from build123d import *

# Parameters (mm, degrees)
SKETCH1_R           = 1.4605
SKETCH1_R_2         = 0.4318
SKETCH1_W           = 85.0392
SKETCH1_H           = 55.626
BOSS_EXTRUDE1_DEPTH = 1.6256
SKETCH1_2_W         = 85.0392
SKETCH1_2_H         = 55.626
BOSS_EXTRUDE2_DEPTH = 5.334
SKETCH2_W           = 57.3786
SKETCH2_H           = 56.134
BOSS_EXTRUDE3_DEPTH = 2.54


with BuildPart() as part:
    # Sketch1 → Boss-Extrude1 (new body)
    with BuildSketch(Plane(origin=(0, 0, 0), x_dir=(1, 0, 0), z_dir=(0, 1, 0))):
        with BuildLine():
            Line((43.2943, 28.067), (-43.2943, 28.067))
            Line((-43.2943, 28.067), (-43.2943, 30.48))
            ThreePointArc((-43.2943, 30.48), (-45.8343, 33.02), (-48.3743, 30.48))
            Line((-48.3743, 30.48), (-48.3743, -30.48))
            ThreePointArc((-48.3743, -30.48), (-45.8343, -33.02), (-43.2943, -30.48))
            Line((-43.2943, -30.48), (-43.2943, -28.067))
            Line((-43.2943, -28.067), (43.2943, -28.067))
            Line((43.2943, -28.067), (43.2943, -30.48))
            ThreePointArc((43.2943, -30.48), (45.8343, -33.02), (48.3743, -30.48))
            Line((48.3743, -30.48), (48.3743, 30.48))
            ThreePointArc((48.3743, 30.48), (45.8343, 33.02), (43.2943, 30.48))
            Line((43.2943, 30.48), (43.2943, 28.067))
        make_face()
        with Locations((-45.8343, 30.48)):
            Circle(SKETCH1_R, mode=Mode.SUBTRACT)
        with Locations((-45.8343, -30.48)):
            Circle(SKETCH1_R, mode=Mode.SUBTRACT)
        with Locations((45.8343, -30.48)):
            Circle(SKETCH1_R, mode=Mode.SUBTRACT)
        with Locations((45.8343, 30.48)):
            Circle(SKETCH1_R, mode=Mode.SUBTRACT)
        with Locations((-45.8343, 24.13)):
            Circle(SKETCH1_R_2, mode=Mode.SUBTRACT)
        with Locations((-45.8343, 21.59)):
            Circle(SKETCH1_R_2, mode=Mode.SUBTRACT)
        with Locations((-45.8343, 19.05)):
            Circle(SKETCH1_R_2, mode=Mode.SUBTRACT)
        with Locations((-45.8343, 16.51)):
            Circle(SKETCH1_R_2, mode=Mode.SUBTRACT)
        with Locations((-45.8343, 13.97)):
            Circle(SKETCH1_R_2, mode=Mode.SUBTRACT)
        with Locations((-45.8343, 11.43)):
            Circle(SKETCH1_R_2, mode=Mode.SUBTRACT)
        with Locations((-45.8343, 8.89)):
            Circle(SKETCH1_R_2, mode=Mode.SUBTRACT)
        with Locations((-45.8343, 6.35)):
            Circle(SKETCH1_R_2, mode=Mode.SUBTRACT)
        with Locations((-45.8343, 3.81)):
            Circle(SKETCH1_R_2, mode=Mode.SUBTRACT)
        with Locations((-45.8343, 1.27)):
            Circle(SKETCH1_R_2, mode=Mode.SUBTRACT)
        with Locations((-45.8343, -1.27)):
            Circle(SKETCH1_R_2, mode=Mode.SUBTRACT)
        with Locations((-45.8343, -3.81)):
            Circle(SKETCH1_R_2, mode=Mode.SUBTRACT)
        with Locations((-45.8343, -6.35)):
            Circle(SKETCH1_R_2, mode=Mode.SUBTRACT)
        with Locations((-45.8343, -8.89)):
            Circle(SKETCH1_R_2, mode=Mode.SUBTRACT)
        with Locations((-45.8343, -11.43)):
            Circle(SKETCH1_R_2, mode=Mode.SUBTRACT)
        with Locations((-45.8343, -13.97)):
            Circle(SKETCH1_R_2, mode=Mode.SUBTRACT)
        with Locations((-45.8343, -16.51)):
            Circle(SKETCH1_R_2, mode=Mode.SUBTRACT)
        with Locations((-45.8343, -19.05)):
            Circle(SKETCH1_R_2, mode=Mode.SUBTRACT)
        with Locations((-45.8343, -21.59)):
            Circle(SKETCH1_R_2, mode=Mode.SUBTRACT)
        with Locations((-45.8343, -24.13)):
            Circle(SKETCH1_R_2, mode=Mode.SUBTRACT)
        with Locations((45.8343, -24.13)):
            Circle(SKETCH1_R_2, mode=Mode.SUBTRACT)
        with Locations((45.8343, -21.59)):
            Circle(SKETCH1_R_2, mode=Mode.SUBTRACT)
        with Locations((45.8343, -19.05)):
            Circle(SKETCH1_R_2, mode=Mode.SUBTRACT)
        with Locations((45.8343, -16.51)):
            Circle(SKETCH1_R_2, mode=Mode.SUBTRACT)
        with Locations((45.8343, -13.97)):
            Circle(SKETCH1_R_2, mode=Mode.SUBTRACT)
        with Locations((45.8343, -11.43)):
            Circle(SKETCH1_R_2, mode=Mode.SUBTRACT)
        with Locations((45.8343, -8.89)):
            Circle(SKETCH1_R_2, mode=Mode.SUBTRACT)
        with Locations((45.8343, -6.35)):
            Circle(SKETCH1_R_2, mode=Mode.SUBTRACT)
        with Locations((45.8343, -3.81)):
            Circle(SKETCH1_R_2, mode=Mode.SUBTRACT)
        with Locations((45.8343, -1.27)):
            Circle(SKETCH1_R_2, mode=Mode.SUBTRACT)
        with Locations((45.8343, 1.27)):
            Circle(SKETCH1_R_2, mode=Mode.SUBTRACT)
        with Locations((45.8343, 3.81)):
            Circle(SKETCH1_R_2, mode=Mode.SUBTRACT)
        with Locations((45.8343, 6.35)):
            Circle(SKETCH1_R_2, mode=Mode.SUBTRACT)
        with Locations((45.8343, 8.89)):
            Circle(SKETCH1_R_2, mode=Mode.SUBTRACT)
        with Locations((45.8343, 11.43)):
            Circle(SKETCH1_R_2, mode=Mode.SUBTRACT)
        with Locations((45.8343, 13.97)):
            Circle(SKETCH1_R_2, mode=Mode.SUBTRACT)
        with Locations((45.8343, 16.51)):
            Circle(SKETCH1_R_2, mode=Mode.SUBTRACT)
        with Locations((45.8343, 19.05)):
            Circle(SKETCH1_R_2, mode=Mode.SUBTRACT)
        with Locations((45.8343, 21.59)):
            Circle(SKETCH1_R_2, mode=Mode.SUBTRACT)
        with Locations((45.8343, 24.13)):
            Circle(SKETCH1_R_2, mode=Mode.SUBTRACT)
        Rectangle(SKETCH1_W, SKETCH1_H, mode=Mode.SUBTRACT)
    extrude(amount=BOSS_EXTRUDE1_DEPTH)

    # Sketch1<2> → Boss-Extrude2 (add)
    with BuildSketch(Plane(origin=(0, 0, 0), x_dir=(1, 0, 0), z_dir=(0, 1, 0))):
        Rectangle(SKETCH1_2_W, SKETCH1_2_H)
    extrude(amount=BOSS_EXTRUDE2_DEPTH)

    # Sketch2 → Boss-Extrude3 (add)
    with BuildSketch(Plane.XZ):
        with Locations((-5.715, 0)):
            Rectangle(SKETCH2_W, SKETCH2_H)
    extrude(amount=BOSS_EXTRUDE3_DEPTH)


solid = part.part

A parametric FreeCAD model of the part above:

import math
import FreeCAD as App
import Part
import Sketcher
from FreeCAD import Vector
Q = App.Units.Quantity

doc = App.newDocument("Part")
body = doc.addObject("PartDesign::Body", "Body")

# Sketch on XZ plane
sketch1 = body.newObject("Sketcher::SketchObject", "Sketch")
sketch1.AttachmentSupport = (doc.getObject("XZ_Plane"), [""])
sketch1.MapMode = "FlatFace"
sketch1.addGeometry(Part.LineSegment(Vector(43.29, -28.07, 0), Vector(-43.29, -28.07, 0)), False)
sketch1.addGeometry(Part.LineSegment(Vector(-43.29, -28.07, 0), Vector(-43.29, -30.48, 0)), False)
sketch1.addGeometry(Part.ArcOfCircle(Part.Circle(Vector(-45.83, -30.48, 0), Vector(0, 0, 1), 2.54), math.radians(180), math.radians(360)), False)
sketch1.addGeometry(Part.LineSegment(Vector(-48.37, -30.48, 0), Vector(-48.37, 30.48, 0)), False)
sketch1.addGeometry(Part.ArcOfCircle(Part.Circle(Vector(-45.83, 30.48, 0), Vector(0, 0, 1), 2.54), math.radians(0), math.radians(180)), False)
sketch1.addGeometry(Part.LineSegment(Vector(-43.29, 30.48, 0), Vector(-43.29, 28.07, 0)), False)
sketch1.addGeometry(Part.LineSegment(Vector(-43.29, 28.07, 0), Vector(43.29, 28.07, 0)), False)
sketch1.addGeometry(Part.LineSegment(Vector(43.29, 28.07, 0), Vector(43.29, 30.48, 0)), False)
sketch1.addGeometry(Part.ArcOfCircle(Part.Circle(Vector(45.83, 30.48, 0), Vector(0, 0, 1), 2.54), math.radians(0), math.radians(180)), False)
sketch1.addGeometry(Part.LineSegment(Vector(48.37, 30.48, 0), Vector(48.37, -30.48, 0)), False)
sketch1.addGeometry(Part.ArcOfCircle(Part.Circle(Vector(45.83, -30.48, 0), Vector(0, 0, 1), 2.54), math.radians(180), math.radians(360)), False)
sketch1.addGeometry(Part.LineSegment(Vector(43.29, -30.48, 0), Vector(43.29, -28.07, 0)), False)
sketch1.addGeometry(Part.Circle(Vector(-45.83, 30.48, 0), Vector(0, 0, 1), 1.46), False)
sketch1.addGeometry(Part.Circle(Vector(-45.83, 24.13, 0), Vector(0, 0, 1), 0.43), False)
sketch1.addGeometry(Part.Circle(Vector(-45.83, 21.59, 0), Vector(0, 0, 1), 0.43), False)
sketch1.addGeometry(Part.Circle(Vector(-45.83, 19.05, 0), Vector(0, 0, 1), 0.43), False)
sketch1.addGeometry(Part.Circle(Vector(-45.83, 16.51, 0), Vector(0, 0, 1), 0.43), False)
sketch1.addGeometry(Part.Circle(Vector(-45.83, 13.97, 0), Vector(0, 0, 1), 0.43), False)
sketch1.addGeometry(Part.Circle(Vector(-45.83, 11.43, 0), Vector(0, 0, 1), 0.43), False)
sketch1.addGeometry(Part.Circle(Vector(-45.83, 8.89, 0), Vector(0, 0, 1), 0.43), False)
sketch1.addGeometry(Part.Circle(Vector(-45.83, 6.35, 0), Vector(0, 0, 1), 0.43), False)
sketch1.addGeometry(Part.Circle(Vector(-45.83, 3.81, 0), Vector(0, 0, 1), 0.43), False)
sketch1.addGeometry(Part.Circle(Vector(-45.83, 1.27, 0), Vector(0, 0, 1), 0.43), False)
sketch1.addGeometry(Part.Circle(Vector(45.83, 30.48, 0), Vector(0, 0, 1), 1.46), False)
sketch1.addGeometry(Part.Circle(Vector(45.83, 24.13, 0), Vector(0, 0, 1), 0.43), False)
sketch1.addGeometry(Part.Circle(Vector(45.83, 21.59, 0), Vector(0, 0, 1), 0.43), False)
sketch1.addGeometry(Part.Circle(Vector(45.83, 19.05, 0), Vector(0, 0, 1), 0.43), False)
sketch1.addGeometry(Part.Circle(Vector(45.83, 16.51, 0), Vector(0, 0, 1), 0.43), False)
sketch1.addGeometry(Part.LineSegment(Vector(42.52, 27.81, 0), Vector(-42.52, 27.81, 0)), False)
sketch1.addGeometry(Part.LineSegment(Vector(-42.52, 27.81, 0), Vector(-42.52, -27.81, 0)), False)
sketch1.addGeometry(Part.LineSegment(Vector(-42.52, -27.81, 0), Vector(42.52, -27.81, 0)), False)
sketch1.addGeometry(Part.LineSegment(Vector(42.52, -27.81, 0), Vector(42.52, 27.81, 0)), False)
sketch1.addGeometry(Part.Circle(Vector(45.83, 13.97, 0), Vector(0, 0, 1), 0.43), False)
sketch1.addGeometry(Part.Circle(Vector(45.83, 11.43, 0), Vector(0, 0, 1), 0.43), False)
sketch1.addGeometry(Part.Circle(Vector(45.83, 8.89, 0), Vector(0, 0, 1), 0.43), False)
sketch1.addGeometry(Part.Circle(Vector(45.83, 6.35, 0), Vector(0, 0, 1), 0.43), False)
sketch1.addGeometry(Part.Circle(Vector(45.83, 3.81, 0), Vector(0, 0, 1), 0.43), False)
sketch1.addGeometry(Part.Circle(Vector(45.83, 1.27, 0), Vector(0, 0, 1), 0.43), False)
sketch1.addGeometry(Part.Circle(Vector(-45.83, -1.27, 0), Vector(0, 0, 1), 0.43), False)
sketch1.addGeometry(Part.Circle(Vector(-45.83, -3.81, 0), Vector(0, 0, 1), 0.43), False)
sketch1.addGeometry(Part.Circle(Vector(-45.83, -6.35, 0), Vector(0, 0, 1), 0.43), False)
sketch1.addGeometry(Part.Circle(Vector(-45.83, -8.89, 0), Vector(0, 0, 1), 0.43), False)
sketch1.addGeometry(Part.Circle(Vector(-45.83, -11.43, 0), Vector(0, 0, 1), 0.43), False)
sketch1.addGeometry(Part.Circle(Vector(-45.83, -13.97, 0), Vector(0, 0, 1), 0.43), False)
sketch1.addGeometry(Part.Circle(Vector(-45.83, -16.51, 0), Vector(0, 0, 1), 0.43), False)
sketch1.addGeometry(Part.Circle(Vector(-45.83, -19.05, 0), Vector(0, 0, 1), 0.43), False)
sketch1.addGeometry(Part.Circle(Vector(-45.83, -21.59, 0), Vector(0, 0, 1), 0.43), False)
sketch1.addGeometry(Part.Circle(Vector(-45.83, -24.13, 0), Vector(0, 0, 1), 0.43), False)
sketch1.addGeometry(Part.Circle(Vector(-45.83, -30.48, 0), Vector(0, 0, 1), 1.46), False)
sketch1.addGeometry(Part.Circle(Vector(45.83, -1.27, 0), Vector(0, 0, 1), 0.43), False)
sketch1.addGeometry(Part.Circle(Vector(45.83, -3.81, 0), Vector(0, 0, 1), 0.43), False)
sketch1.addGeometry(Part.Circle(Vector(45.83, -6.35, 0), Vector(0, 0, 1), 0.43), False)
sketch1.addGeometry(Part.Circle(Vector(45.83, -8.89, 0), Vector(0, 0, 1), 0.43), False)
sketch1.addGeometry(Part.Circle(Vector(45.83, -11.43, 0), Vector(0, 0, 1), 0.43), False)
sketch1.addGeometry(Part.Circle(Vector(45.83, -13.97, 0), Vector(0, 0, 1), 0.43), False)
sketch1.addGeometry(Part.Circle(Vector(45.83, -16.51, 0), Vector(0, 0, 1), 0.43), False)
sketch1.addGeometry(Part.Circle(Vector(45.83, -19.05, 0), Vector(0, 0, 1), 0.43), False)
sketch1.addGeometry(Part.Circle(Vector(45.83, -21.59, 0), Vector(0, 0, 1), 0.43), False)
sketch1.addGeometry(Part.Circle(Vector(45.83, -24.13, 0), Vector(0, 0, 1), 0.43), False)
sketch1.addGeometry(Part.Circle(Vector(45.83, -30.48, 0), Vector(0, 0, 1), 1.46), False)
sketch1.addConstraint(Sketcher.Constraint("Coincident", 0, 2, 1, 1))
sketch1.addConstraint(Sketcher.Constraint("Tangent", 1, 2, 2, 2))
sketch1.addConstraint(Sketcher.Constraint("Tangent", 2, 1, 3, 1))
sketch1.addConstraint(Sketcher.Constraint("Tangent", 3, 2, 4, 2))
sketch1.addConstraint(Sketcher.Constraint("Tangent", 4, 1, 5, 1))
sketch1.addConstraint(Sketcher.Constraint("Coincident", 5, 2, 6, 1))
sketch1.addConstraint(Sketcher.Constraint("Coincident", 6, 2, 7, 1))
sketch1.addConstraint(Sketcher.Constraint("Tangent", 7, 2, 8, 2))
sketch1.addConstraint(Sketcher.Constraint("Tangent", 8, 1, 9, 1))
sketch1.addConstraint(Sketcher.Constraint("Tangent", 9, 2, 10, 2))
sketch1.addConstraint(Sketcher.Constraint("Tangent", 10, 1, 11, 1))
sketch1.addConstraint(Sketcher.Constraint("Coincident", 11, 2, 0, 1))
sketch1.addConstraint(Sketcher.Constraint("Coincident", 28, 2, 29, 1))
sketch1.addConstraint(Sketcher.Constraint("Coincident", 29, 2, 30, 1))
sketch1.addConstraint(Sketcher.Constraint("Coincident", 30, 2, 31, 1))
sketch1.addConstraint(Sketcher.Constraint("Coincident", 31, 2, 28, 1))
sketch1.addConstraint(Sketcher.Constraint("Horizontal", 0))
sketch1.addConstraint(Sketcher.Constraint("Vertical", 1))
sketch1.addConstraint(Sketcher.Constraint("Vertical", 3))
sketch1.addConstraint(Sketcher.Constraint("Vertical", 5))
sketch1.addConstraint(Sketcher.Constraint("Horizontal", 6))
sketch1.addConstraint(Sketcher.Constraint("Vertical", 7))
sketch1.addConstraint(Sketcher.Constraint("Vertical", 9))
sketch1.addConstraint(Sketcher.Constraint("Vertical", 11))
sketch1.addConstraint(Sketcher.Constraint("Horizontal", 28))
sketch1.addConstraint(Sketcher.Constraint("Vertical", 29))
sketch1.addConstraint(Sketcher.Constraint("Horizontal", 30))
sketch1.addConstraint(Sketcher.Constraint("Vertical", 31))
sketch1.addConstraint(Sketcher.Constraint("Coincident", 12, 3, 4, 3))
sketch1.addConstraint(Sketcher.Constraint("Coincident", 23, 3, 8, 3))
sketch1.addConstraint(Sketcher.Constraint("Coincident", 48, 3, 2, 3))
sketch1.addConstraint(Sketcher.Constraint("Coincident", 59, 3, 10, 3))
sketch1.addConstraint(Sketcher.Constraint("Equal", 2, 4))
sketch1.addConstraint(Sketcher.Constraint("Equal", 4, 8))
sketch1.addConstraint(Sketcher.Constraint("Equal", 8, 10))
sketch1.addConstraint(Sketcher.Constraint("Equal", 13, 14))
sketch1.addConstraint(Sketcher.Constraint("Equal", 14, 15))
sketch1.addConstraint(Sketcher.Constraint("Equal", 15, 16))
sketch1.addConstraint(Sketcher.Constraint("Equal", 16, 17))
sketch1.addConstraint(Sketcher.Constraint("Equal", 17, 18))
sketch1.addConstraint(Sketcher.Constraint("Equal", 18, 19))
sketch1.addConstraint(Sketcher.Constraint("Equal", 19, 20))
sketch1.addConstraint(Sketcher.Constraint("Equal", 20, 21))
sketch1.addConstraint(Sketcher.Constraint("Equal", 21, 22))
sketch1.addConstraint(Sketcher.Constraint("Equal", 12, 23))
sketch1.addConstraint(Sketcher.Constraint("Equal", 22, 24))
sketch1.addConstraint(Sketcher.Constraint("Equal", 24, 25))
sketch1.addConstraint(Sketcher.Constraint("Equal", 25, 26))
sketch1.addConstraint(Sketcher.Constraint("Equal", 26, 27))
sketch1.addConstraint(Sketcher.Constraint("Equal", 27, 32))
sketch1.addConstraint(Sketcher.Constraint("Equal", 32, 33))
sketch1.addConstraint(Sketcher.Constraint("Equal", 33, 34))
sketch1.addConstraint(Sketcher.Constraint("Equal", 34, 35))
sketch1.addConstraint(Sketcher.Constraint("Equal", 35, 36))
sketch1.addConstraint(Sketcher.Constraint("Equal", 36, 37))
sketch1.addConstraint(Sketcher.Constraint("Equal", 37, 38))
sketch1.addConstraint(Sketcher.Constraint("Equal", 38, 39))
sketch1.addConstraint(Sketcher.Constraint("Equal", 39, 40))
sketch1.addConstraint(Sketcher.Constraint("Equal", 40, 41))
sketch1.addConstraint(Sketcher.Constraint("Equal", 41, 42))
sketch1.addConstraint(Sketcher.Constraint("Equal", 42, 43))
sketch1.addConstraint(Sketcher.Constraint("Equal", 43, 44))
sketch1.addConstraint(Sketcher.Constraint("Equal", 44, 45))
sketch1.addConstraint(Sketcher.Constraint("Equal", 45, 46))
sketch1.addConstraint(Sketcher.Constraint("Equal", 46, 47))
sketch1.addConstraint(Sketcher.Constraint("Equal", 23, 48))
sketch1.addConstraint(Sketcher.Constraint("Equal", 47, 49))
sketch1.addConstraint(Sketcher.Constraint("Equal", 49, 50))
sketch1.addConstraint(Sketcher.Constraint("Equal", 50, 51))
sketch1.addConstraint(Sketcher.Constraint("Equal", 51, 52))
sketch1.addConstraint(Sketcher.Constraint("Equal", 52, 53))
sketch1.addConstraint(Sketcher.Constraint("Equal", 53, 54))
sketch1.addConstraint(Sketcher.Constraint("Equal", 54, 55))
sketch1.addConstraint(Sketcher.Constraint("Equal", 55, 56))
sketch1.addConstraint(Sketcher.Constraint("Equal", 56, 57))
sketch1.addConstraint(Sketcher.Constraint("Equal", 57, 58))
sketch1.addConstraint(Sketcher.Constraint("Equal", 48, 59))
sketch1.addConstraint(Sketcher.Constraint("Symmetric", 2, 3, 8, 3, -1, 1))
sketch1.addConstraint(Sketcher.Constraint("Symmetric", 37, 3, 38, 3, -1, 1))
sketch1.addConstraint(Sketcher.Constraint("Symmetric", 36, 3, 39, 3, -1, 1))
sketch1.addConstraint(Sketcher.Constraint("Symmetric", 35, 3, 40, 3, -1, 1))
sketch1.addConstraint(Sketcher.Constraint("Symmetric", 34, 3, 41, 3, -1, 1))
sketch1.addConstraint(Sketcher.Constraint("Symmetric", 33, 3, 42, 3, -1, 1))
sketch1.addConstraint(Sketcher.Constraint("Symmetric", 32, 3, 43, 3, -1, 1))
sketch1.addConstraint(Sketcher.Constraint("Symmetric", 27, 3, 44, 3, -1, 1))
sketch1.addConstraint(Sketcher.Constraint("Symmetric", 26, 3, 45, 3, -1, 1))
sketch1.addConstraint(Sketcher.Constraint("Symmetric", 25, 3, 46, 3, -1, 1))
sketch1.addConstraint(Sketcher.Constraint("Symmetric", 24, 3, 47, 3, -1, 1))
sketch1.addConstraint(Sketcher.Constraint("Symmetric", 22, 3, 49, 3, -1, 1))
sketch1.addConstraint(Sketcher.Constraint("Symmetric", 21, 3, 50, 3, -1, 1))
sketch1.addConstraint(Sketcher.Constraint("Symmetric", 20, 3, 51, 3, -1, 1))
sketch1.addConstraint(Sketcher.Constraint("Symmetric", 19, 3, 52, 3, -1, 1))
sketch1.addConstraint(Sketcher.Constraint("Symmetric", 18, 3, 53, 3, -1, 1))
sketch1.addConstraint(Sketcher.Constraint("Symmetric", 17, 3, 54, 3, -1, 1))
sketch1.addConstraint(Sketcher.Constraint("Symmetric", 16, 3, 55, 3, -1, 1))
sketch1.addConstraint(Sketcher.Constraint("Symmetric", 15, 3, 56, 3, -1, 1))
sketch1.addConstraint(Sketcher.Constraint("Symmetric", 14, 3, 57, 3, -1, 1))
sketch1.addConstraint(Sketcher.Constraint("Symmetric", 13, 3, 58, 3, -1, 1))
sketch1.addConstraint(Sketcher.Constraint("Symmetric", 28, 2, 30, 2, -1, 1))
sketch1.addConstraint(Sketcher.Constraint("Symmetric", 13, 3, 24, 3, -2))
sketch1.addConstraint(Sketcher.Constraint("Symmetric", 14, 3, 25, 3, -2))
sketch1.addConstraint(Sketcher.Constraint("Symmetric", 15, 3, 26, 3, -2))
sketch1.addConstraint(Sketcher.Constraint("Symmetric", 16, 3, 27, 3, -2))
sketch1.addConstraint(Sketcher.Constraint("Symmetric", 17, 3, 32, 3, -2))
sketch1.addConstraint(Sketcher.Constraint("Symmetric", 18, 3, 33, 3, -2))
sketch1.addConstraint(Sketcher.Constraint("Symmetric", 19, 3, 34, 3, -2))
sketch1.addConstraint(Sketcher.Constraint("Symmetric", 20, 3, 35, 3, -2))
sketch1.addConstraint(Sketcher.Constraint("Symmetric", 21, 3, 36, 3, -2))
sketch1.addConstraint(Sketcher.Constraint("Symmetric", 22, 3, 37, 3, -2))
sketch1.addConstraint(Sketcher.Constraint("Horizontal", 4, 3, 8, 3))
sketch1.addConstraint(Sketcher.Constraint("Horizontal", 2, 3, 10, 3))
sketch1.addConstraint(Sketcher.Constraint("Vertical", 12, 3, 13, 3))
sketch1.addConstraint(Sketcher.Constraint("Vertical", 13, 3, 14, 3))
sketch1.addConstraint(Sketcher.Constraint("Vertical", 14, 3, 15, 3))
sketch1.addConstraint(Sketcher.Constraint("Vertical", 15, 3, 16, 3))
sketch1.addConstraint(Sketcher.Constraint("Vertical", 16, 3, 17, 3))
sketch1.addConstraint(Sketcher.Constraint("Vertical", 17, 3, 18, 3))
sketch1.addConstraint(Sketcher.Constraint("Vertical", 18, 3, 19, 3))
sketch1.addConstraint(Sketcher.Constraint("Vertical", 19, 3, 20, 3))
sketch1.addConstraint(Sketcher.Constraint("Vertical", 20, 3, 21, 3))
sketch1.addConstraint(Sketcher.Constraint("Vertical", 21, 3, 22, 3))
sketch1.addConstraint(Sketcher.Constraint("Equal", 1, 5))
sketch1.addConstraint(Sketcher.Constraint("Radius", 2, Q("0.1 in")))
sketch1.addConstraint(Sketcher.Constraint("Diameter", 12, Q("0.115 in")))
sketch1.addConstraint(Sketcher.Constraint("Diameter", 13, Q("0.034 in")))
sketch1.addConstraint(Sketcher.Constraint("DistanceY", 3, 1, 3, 2, Q("2.4 in")))
sketch1.addConstraint(Sketcher.Constraint("DistanceY", 29, 2, 29, 1, Q("2.19 in")))
sketch1.addConstraint(Sketcher.Constraint("DistanceX", 0, 2, 0, 1, Q("3.409 in")))
sketch1.addConstraint(Sketcher.Constraint("DistanceX", 28, 2, 28, 1, Q("3.348 in")))
sketch1.addConstraint(Sketcher.Constraint("DistanceY", 1, 2, 1, 1, Q("0.095 in")))
sketch1.addConstraint(Sketcher.Constraint("DistanceY", -1, 1, 13, 3, Q("0.95 in")))
sketch1.addConstraint(Sketcher.Constraint("DistanceY", -1, 1, 14, 3, Q("0.85 in")))
sketch1.addConstraint(Sketcher.Constraint("DistanceY", -1, 1, 15, 3, Q("0.75 in")))
sketch1.addConstraint(Sketcher.Constraint("DistanceY", -1, 1, 16, 3, Q("0.65 in")))
sketch1.addConstraint(Sketcher.Constraint("DistanceY", -1, 1, 17, 3, Q("0.55 in")))
sketch1.addConstraint(Sketcher.Constraint("DistanceY", -1, 1, 18, 3, Q("0.45 in")))
sketch1.addConstraint(Sketcher.Constraint("DistanceY", -1, 1, 19, 3, Q("0.35 in")))
sketch1.addConstraint(Sketcher.Constraint("DistanceY", -1, 1, 20, 3, Q("0.25 in")))
sketch1.addConstraint(Sketcher.Constraint("DistanceY", -1, 1, 21, 3, Q("0.15 in")))
sketch1.addConstraint(Sketcher.Constraint("DistanceY", -1, 1, 22, 3, Q("0.05 in")))
pad1 = body.newObject("PartDesign::Pad", "Pad")
pad1.Profile = sketch1
pad1.Length = Q("0.064 in")
pad1.Reversed = True

# Sketch on XZ plane
sketch2 = body.newObject("Sketcher::SketchObject", "Sketch001")
sketch2.AttachmentSupport = (doc.getObject("XZ_Plane"), [""])
sketch2.MapMode = "FlatFace"
sketch2.addGeometry(Part.LineSegment(Vector(-43, -28, 0), Vector(-43, 28, 0)), False)
sketch2.addGeometry(Part.LineSegment(Vector(-43, 28, 0), Vector(43, 28, 0)), False)
sketch2.addGeometry(Part.LineSegment(Vector(43, 28, 0), Vector(43, -28, 0)), False)
sketch2.addGeometry(Part.LineSegment(Vector(43, -28, 0), Vector(-43, -28, 0)), False)
sketch2.addConstraint(Sketcher.Constraint("Coincident", 0, 2, 1, 1))
sketch2.addConstraint(Sketcher.Constraint("Coincident", 1, 2, 2, 1))
sketch2.addConstraint(Sketcher.Constraint("Coincident", 2, 2, 3, 1))
sketch2.addConstraint(Sketcher.Constraint("Coincident", 3, 2, 0, 1))
sketch2.addConstraint(Sketcher.Constraint("Vertical", 0))
sketch2.addConstraint(Sketcher.Constraint("Horizontal", 1))
sketch2.addConstraint(Sketcher.Constraint("Vertical", 2))
sketch2.addConstraint(Sketcher.Constraint("Horizontal", 3))
sketch2.addConstraint(Sketcher.Constraint("Symmetric", 0, 2, 2, 2, -1, 1))
sketch2.addConstraint(Sketcher.Constraint("DistanceY", 0, 1, 0, 2, Q("2.19 in")))
sketch2.addConstraint(Sketcher.Constraint("DistanceX", 1, 1, 1, 2, Q("3.348 in")))
pad2 = body.newObject("PartDesign::Pad", "Pad001")
pad2.Profile = sketch2
pad2.Length = Q("0.21 in")
pad2.Reversed = True

# Sketch on XZ plane
sketch3 = body.newObject("Sketcher::SketchObject", "Sketch002")
sketch3.AttachmentSupport = (doc.getObject("XZ_Plane"), [""])
sketch3.MapMode = "FlatFace"
sketch3.addGeometry(Part.LineSegment(Vector(-34, 28, 0), Vector(-34, -28, 0)), False)
sketch3.addGeometry(Part.LineSegment(Vector(-34, -28, 0), Vector(23, -28, 0)), False)
sketch3.addGeometry(Part.LineSegment(Vector(23, -28, 0), Vector(23, 28, 0)), False)
sketch3.addGeometry(Part.LineSegment(Vector(23, 28, 0), Vector(-34, 28, 0)), False)
sketch3.addConstraint(Sketcher.Constraint("Coincident", 0, 2, 1, 1))
sketch3.addConstraint(Sketcher.Constraint("Coincident", 1, 2, 2, 1))
sketch3.addConstraint(Sketcher.Constraint("Coincident", 2, 2, 3, 1))
sketch3.addConstraint(Sketcher.Constraint("Coincident", 3, 2, 0, 1))
sketch3.addConstraint(Sketcher.Constraint("Vertical", 0))
sketch3.addConstraint(Sketcher.Constraint("Horizontal", 1))
sketch3.addConstraint(Sketcher.Constraint("Vertical", 2))
sketch3.addConstraint(Sketcher.Constraint("Horizontal", 3))
sketch3.addConstraint(Sketcher.Constraint("DistanceY", 0, 2, 0, 1, Q("2.21 in")))
sketch3.addConstraint(Sketcher.Constraint("DistanceX", 1, 1, 1, 2, Q("2.259 in")))
sketch3.addConstraint(Sketcher.Constraint("DistanceY", 0, 2, -1, 1, Q("1.105 in")))
sketch3.addConstraint(Sketcher.Constraint("DistanceX", 0, 2, -1, 1, Q("1.3545 in")))
pad3 = body.newObject("PartDesign::Pad", "Pad002")
pad3.Profile = sketch3
pad3.Length = Q("0.1 in")

doc.recompute()
